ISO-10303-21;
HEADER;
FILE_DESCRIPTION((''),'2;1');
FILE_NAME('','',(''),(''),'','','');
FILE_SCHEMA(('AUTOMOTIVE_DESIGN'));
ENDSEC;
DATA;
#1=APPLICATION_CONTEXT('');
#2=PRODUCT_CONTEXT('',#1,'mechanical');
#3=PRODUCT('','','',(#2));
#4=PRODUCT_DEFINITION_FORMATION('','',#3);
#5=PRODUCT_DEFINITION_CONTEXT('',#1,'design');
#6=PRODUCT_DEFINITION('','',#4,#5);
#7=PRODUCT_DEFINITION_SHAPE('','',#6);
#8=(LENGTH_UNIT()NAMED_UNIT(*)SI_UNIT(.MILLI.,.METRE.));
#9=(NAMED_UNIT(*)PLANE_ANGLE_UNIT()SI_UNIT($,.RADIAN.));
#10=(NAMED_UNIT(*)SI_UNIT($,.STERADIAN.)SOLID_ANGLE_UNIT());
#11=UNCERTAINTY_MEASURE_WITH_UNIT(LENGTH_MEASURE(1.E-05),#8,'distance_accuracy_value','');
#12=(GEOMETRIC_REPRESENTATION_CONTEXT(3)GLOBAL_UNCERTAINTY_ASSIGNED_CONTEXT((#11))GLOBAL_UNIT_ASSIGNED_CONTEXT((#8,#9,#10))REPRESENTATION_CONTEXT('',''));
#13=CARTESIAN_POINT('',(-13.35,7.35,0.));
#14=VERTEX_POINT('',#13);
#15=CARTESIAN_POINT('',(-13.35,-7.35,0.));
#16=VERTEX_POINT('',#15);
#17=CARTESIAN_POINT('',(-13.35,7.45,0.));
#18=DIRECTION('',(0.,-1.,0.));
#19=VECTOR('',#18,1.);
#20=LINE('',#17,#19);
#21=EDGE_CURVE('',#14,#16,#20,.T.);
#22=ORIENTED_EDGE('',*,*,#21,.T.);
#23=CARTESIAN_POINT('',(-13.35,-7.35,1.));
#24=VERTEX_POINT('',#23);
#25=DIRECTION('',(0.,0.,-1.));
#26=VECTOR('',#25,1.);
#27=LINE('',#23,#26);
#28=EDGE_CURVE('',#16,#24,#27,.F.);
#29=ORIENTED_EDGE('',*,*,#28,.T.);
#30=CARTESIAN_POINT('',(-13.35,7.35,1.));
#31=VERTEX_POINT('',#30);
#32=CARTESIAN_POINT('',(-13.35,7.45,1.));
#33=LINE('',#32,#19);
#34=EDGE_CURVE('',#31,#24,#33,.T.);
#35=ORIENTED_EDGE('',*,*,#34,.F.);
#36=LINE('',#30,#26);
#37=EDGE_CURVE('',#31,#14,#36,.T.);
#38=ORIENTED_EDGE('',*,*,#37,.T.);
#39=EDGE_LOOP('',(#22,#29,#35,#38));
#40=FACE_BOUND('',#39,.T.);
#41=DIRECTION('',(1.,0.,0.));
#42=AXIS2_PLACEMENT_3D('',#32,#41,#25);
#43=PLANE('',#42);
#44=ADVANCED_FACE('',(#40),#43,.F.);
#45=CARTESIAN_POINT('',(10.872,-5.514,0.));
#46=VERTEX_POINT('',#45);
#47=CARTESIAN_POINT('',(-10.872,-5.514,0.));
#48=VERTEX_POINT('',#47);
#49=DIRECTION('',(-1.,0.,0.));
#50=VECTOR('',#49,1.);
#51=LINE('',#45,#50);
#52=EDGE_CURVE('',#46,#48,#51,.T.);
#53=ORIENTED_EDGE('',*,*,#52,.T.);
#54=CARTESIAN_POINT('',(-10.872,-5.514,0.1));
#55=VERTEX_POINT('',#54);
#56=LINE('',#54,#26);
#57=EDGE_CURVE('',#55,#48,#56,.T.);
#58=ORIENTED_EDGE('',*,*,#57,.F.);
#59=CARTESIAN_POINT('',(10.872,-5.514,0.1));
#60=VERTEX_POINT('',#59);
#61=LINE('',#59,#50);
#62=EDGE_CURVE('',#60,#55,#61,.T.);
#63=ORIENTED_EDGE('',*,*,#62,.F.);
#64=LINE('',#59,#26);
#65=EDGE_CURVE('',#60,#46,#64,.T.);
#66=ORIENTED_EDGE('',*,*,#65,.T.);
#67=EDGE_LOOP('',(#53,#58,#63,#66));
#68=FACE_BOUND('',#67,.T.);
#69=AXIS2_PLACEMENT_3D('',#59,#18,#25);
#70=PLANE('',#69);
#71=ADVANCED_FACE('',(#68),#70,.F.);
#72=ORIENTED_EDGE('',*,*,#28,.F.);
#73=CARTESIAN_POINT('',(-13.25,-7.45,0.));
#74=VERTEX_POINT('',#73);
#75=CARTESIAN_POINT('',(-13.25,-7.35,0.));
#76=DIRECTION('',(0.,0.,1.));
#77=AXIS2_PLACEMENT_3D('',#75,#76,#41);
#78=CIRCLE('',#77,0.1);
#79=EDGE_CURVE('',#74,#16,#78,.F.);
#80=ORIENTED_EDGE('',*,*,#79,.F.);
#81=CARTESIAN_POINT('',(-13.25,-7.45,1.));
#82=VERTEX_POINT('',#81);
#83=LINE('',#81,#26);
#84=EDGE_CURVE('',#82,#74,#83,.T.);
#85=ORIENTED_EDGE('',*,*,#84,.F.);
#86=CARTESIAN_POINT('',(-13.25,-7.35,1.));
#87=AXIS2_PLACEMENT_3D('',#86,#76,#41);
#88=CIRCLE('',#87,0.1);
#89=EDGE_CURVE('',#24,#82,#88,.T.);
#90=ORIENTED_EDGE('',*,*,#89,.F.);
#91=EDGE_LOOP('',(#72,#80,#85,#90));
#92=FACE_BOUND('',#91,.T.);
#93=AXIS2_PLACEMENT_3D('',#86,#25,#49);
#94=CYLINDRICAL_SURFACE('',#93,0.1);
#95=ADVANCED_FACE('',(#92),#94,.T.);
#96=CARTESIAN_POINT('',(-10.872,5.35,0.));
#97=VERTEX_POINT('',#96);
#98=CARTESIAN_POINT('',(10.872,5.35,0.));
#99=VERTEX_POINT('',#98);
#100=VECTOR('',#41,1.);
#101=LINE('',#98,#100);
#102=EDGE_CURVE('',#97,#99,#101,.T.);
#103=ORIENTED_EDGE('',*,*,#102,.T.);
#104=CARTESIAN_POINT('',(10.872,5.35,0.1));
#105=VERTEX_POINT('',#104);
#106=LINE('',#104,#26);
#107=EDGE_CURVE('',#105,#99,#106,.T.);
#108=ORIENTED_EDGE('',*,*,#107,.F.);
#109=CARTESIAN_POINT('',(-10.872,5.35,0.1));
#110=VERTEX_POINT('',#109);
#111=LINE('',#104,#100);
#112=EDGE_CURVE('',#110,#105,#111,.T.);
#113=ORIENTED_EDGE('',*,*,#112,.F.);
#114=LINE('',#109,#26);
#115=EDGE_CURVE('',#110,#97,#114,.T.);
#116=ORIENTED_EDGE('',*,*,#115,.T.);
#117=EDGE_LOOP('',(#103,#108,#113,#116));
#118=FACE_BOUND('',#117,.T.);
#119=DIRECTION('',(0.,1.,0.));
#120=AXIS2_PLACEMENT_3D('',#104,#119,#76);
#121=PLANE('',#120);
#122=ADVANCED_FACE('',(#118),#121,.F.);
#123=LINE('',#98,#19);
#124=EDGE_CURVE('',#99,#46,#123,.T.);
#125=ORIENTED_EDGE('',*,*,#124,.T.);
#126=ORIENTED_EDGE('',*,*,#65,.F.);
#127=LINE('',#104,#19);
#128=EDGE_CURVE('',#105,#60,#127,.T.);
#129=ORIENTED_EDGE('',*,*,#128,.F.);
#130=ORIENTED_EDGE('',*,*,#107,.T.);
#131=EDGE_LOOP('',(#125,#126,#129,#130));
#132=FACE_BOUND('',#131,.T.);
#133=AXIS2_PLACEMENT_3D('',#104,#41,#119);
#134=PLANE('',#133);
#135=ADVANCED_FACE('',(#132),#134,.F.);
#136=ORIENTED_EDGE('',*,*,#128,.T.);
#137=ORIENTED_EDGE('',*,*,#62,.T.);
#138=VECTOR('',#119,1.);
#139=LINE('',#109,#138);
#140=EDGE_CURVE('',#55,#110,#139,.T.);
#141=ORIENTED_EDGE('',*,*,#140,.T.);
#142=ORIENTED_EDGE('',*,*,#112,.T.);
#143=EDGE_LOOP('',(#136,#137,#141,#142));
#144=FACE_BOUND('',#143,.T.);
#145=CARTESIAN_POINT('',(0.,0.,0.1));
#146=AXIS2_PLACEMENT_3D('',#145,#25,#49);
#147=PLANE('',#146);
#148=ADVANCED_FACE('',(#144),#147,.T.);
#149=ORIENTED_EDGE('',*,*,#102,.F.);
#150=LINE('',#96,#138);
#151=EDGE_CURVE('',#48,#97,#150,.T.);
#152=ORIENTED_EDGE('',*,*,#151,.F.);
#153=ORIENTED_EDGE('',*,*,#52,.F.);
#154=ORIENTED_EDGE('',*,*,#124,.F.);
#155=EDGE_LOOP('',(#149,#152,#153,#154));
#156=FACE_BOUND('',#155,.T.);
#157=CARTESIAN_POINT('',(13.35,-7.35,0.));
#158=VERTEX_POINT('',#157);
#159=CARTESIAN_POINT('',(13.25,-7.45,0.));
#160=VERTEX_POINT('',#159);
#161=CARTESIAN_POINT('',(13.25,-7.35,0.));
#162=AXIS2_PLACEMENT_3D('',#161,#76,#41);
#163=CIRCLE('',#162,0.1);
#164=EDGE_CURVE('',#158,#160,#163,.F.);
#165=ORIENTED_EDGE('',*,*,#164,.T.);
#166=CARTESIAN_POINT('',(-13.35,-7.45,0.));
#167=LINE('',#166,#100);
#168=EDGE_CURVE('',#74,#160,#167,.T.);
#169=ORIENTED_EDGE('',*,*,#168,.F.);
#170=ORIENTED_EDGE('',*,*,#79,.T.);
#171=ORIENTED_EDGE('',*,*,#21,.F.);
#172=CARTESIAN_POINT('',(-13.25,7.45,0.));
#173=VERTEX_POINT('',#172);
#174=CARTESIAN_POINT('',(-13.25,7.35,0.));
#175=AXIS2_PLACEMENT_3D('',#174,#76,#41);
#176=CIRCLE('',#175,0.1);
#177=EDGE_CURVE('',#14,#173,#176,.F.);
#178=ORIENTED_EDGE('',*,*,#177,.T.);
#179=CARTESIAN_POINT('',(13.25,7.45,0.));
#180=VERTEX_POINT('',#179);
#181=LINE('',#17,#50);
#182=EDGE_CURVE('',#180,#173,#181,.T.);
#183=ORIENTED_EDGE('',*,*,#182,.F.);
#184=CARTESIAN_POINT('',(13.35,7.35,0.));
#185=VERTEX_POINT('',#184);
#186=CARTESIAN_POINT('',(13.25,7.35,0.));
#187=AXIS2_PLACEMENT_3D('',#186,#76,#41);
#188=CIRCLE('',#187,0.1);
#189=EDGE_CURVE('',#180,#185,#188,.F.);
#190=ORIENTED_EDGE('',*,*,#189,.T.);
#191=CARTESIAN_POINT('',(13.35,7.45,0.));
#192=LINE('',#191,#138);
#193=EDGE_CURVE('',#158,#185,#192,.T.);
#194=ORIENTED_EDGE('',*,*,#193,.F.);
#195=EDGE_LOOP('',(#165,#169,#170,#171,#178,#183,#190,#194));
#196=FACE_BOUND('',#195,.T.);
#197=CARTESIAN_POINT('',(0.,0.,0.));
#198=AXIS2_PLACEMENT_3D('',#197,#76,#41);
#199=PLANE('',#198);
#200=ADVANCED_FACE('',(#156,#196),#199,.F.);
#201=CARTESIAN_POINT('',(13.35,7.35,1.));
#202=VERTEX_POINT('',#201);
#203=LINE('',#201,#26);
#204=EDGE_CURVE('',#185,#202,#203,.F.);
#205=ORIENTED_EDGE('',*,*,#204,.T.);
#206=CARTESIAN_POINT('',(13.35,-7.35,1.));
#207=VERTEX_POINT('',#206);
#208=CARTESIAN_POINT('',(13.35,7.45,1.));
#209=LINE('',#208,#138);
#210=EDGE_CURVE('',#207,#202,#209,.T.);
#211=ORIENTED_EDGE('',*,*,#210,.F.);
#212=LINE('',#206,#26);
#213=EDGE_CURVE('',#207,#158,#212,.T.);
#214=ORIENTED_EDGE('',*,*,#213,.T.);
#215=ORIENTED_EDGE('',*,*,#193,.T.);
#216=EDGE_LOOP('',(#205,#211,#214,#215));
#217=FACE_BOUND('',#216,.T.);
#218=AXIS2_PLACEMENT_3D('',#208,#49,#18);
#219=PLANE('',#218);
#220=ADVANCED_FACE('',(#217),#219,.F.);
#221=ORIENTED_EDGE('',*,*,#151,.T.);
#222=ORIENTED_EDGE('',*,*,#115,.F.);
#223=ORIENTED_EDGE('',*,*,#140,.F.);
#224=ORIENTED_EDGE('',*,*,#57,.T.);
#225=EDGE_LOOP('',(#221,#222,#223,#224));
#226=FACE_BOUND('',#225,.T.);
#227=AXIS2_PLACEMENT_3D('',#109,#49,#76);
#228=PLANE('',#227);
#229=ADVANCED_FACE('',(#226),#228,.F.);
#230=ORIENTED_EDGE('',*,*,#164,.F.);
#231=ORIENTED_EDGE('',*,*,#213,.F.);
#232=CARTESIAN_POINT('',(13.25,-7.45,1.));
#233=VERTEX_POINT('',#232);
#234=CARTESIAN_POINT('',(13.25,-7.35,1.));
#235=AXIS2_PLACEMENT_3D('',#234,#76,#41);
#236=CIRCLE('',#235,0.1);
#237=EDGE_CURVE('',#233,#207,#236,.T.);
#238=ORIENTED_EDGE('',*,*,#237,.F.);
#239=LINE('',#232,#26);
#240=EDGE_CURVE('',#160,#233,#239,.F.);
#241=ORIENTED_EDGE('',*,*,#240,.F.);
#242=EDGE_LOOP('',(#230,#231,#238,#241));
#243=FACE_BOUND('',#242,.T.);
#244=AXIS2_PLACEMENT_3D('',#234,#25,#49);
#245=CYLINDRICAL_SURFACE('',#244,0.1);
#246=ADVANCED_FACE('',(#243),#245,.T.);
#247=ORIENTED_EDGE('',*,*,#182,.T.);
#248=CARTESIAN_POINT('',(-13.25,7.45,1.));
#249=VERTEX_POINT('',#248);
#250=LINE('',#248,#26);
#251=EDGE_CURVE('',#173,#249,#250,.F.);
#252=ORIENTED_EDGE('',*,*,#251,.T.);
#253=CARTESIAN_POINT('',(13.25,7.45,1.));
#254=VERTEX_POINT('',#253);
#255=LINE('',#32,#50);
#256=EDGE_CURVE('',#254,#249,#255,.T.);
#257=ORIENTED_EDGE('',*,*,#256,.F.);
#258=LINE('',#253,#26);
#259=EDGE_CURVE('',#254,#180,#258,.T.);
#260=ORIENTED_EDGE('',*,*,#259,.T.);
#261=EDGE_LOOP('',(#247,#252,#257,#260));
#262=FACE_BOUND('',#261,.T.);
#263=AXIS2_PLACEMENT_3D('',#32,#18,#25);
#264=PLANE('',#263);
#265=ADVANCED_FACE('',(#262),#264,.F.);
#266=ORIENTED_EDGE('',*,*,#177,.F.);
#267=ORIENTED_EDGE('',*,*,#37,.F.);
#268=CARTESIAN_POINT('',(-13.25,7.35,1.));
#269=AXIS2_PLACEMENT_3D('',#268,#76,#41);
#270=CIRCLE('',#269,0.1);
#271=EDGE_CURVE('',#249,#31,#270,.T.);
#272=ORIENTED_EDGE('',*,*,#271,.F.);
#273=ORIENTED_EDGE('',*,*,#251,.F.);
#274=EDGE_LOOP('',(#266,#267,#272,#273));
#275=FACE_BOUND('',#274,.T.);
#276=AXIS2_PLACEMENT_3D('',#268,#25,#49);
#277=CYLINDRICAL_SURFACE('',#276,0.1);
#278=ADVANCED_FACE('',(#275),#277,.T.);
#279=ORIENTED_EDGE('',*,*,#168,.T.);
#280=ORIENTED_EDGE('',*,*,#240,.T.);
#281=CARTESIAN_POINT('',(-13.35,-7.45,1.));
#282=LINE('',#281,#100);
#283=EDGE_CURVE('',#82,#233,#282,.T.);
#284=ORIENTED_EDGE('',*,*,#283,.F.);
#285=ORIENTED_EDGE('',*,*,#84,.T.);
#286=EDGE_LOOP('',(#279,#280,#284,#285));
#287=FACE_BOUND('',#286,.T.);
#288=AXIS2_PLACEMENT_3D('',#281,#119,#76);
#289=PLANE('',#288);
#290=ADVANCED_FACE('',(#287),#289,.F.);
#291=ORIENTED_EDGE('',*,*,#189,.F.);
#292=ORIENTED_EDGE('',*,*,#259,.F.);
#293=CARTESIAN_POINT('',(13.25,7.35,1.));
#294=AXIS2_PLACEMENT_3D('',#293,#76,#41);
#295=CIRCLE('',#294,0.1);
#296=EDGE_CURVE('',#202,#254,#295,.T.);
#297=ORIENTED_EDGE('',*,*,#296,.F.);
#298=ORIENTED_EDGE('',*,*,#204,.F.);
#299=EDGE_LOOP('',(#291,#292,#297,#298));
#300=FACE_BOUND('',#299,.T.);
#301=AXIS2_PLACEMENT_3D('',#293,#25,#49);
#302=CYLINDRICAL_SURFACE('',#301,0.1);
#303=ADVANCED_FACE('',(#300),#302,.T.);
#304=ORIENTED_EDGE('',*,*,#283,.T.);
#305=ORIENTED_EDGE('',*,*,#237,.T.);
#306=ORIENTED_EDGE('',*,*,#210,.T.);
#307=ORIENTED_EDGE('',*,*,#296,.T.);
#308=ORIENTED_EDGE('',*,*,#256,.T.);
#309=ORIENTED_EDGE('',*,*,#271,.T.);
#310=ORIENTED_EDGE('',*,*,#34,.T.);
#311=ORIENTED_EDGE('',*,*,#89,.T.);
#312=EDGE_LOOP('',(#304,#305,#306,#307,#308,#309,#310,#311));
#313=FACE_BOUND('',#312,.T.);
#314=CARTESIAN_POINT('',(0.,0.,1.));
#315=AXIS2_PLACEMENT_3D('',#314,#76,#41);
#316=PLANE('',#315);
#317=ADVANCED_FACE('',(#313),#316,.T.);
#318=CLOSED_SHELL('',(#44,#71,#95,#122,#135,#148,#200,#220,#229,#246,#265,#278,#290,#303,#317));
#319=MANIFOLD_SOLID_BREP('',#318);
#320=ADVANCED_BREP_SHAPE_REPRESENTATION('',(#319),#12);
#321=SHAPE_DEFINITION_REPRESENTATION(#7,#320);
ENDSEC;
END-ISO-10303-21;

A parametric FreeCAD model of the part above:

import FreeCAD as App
import Part
import Sketcher
from FreeCAD import Vector
Q = App.Units.Quantity


def edges_at(feature, points):
    """Names of the edges that pass closest to the given points."""
    edges = feature.Shape.Edges
    near = lambda p: min(range(len(edges)), key=lambda i: edges[i].distToShape(Part.Vertex(*p))[0])
    return sorted({f"Edge{near(p) + 1}" for p in points})


def add_polygon(sketch, points):
    """Adds a closed chain of lines whose ends are joined by coincident constraints."""
    first, n = sketch.GeometryCount, len(points)
    for a, b in zip(points, points[1:] + points[:1]):
        sketch.addGeometry(Part.LineSegment(App.Vector(*a, 0), App.Vector(*b, 0)), False)
    for i in range(n):
        sketch.addConstraint(Sketcher.Constraint("Coincident", first + i, 2, first + (i + 1) % n, 1))

doc = App.newDocument("Part")
body = doc.addObject("PartDesign::Body", "Body")

# Sketch on XY plane
sketch1 = doc.addObject("Sketcher::SketchObject", "Sketch")
body.addObject(sketch1)
sketch1.AttachmentSupport = (doc.XY_Plane, [""])
sketch1.MapMode = "FlatFace"
add_polygon(sketch1, [(-13, 7), (-13, -7), (13, -7), (13, 7)])  # lines 0-3
sketch1.addConstraint([
    Sketcher.Constraint("Vertical", 0),
    Sketcher.Constraint("Horizontal", 1),
    Sketcher.Constraint("Vertical", 2),
    Sketcher.Constraint("Horizontal", 3),
    Sketcher.Constraint("Symmetric", 0, 2, 2, 2, -1, 1),
    Sketcher.Constraint("DistanceX", 1, 1, 1, 2, Q("26.7 mm")),
    Sketcher.Constraint("DistanceY", 0, 2, 0, 1, Q("14.9 mm")),
])
pad1 = doc.addObject("PartDesign::Pad", "Pad")
body.addObject(pad1)
pad1.Profile = sketch1
pad1.Length = 1
doc.recompute()

fillet = doc.addObject("PartDesign::Fillet", "Fillet")
body.addObject(fillet)
fillet.Base = (pad1, edges_at(pad1, [
    (13.35, -7.45, 0.5),
    (-13.35, -7.45, 0.5),
    (-13.35, 7.45, 0.5),
    (13.35, 7.45, 0.5),
]))
fillet.Radius = 0.1

# Sketch on XY plane
sketch2 = doc.addObject("Sketcher::SketchObject", "Sketch001")
body.addObject(sketch2)
sketch2.AttachmentSupport = (doc.XY_Plane, [""])
sketch2.MapMode = "FlatFace"
add_polygon(sketch2, [(11, 5), (11, -6), (-11, -6), (-11, 5)])  # lines 0-3
sketch2.addConstraint([
    Sketcher.Constraint("Vertical", 0),
    Sketcher.Constraint("Horizontal", 1),
    Sketcher.Constraint("Vertical", 2),
    Sketcher.Constraint("Horizontal", 3),
    Sketcher.Constraint("DistanceX", 1, 2, 1, 1, Q("21.744 mm")),
    Sketcher.Constraint("DistanceY", 0, 2, 0, 1, Q("10.864 mm")),
    Sketcher.Constraint("DistanceY", -1, 1, 2, 2, Q("5.35 mm")),
    Sketcher.Constraint("DistanceX", -1, 1, 0, 2, Q("10.872 mm")),
])
pocket1 = doc.addObject("PartDesign::Pocket", "Pocket")
body.addObject(pocket1)
pocket1.Profile = sketch2
pocket1.Length = 0.1
pocket1.Reversed = True

doc.recompute()
